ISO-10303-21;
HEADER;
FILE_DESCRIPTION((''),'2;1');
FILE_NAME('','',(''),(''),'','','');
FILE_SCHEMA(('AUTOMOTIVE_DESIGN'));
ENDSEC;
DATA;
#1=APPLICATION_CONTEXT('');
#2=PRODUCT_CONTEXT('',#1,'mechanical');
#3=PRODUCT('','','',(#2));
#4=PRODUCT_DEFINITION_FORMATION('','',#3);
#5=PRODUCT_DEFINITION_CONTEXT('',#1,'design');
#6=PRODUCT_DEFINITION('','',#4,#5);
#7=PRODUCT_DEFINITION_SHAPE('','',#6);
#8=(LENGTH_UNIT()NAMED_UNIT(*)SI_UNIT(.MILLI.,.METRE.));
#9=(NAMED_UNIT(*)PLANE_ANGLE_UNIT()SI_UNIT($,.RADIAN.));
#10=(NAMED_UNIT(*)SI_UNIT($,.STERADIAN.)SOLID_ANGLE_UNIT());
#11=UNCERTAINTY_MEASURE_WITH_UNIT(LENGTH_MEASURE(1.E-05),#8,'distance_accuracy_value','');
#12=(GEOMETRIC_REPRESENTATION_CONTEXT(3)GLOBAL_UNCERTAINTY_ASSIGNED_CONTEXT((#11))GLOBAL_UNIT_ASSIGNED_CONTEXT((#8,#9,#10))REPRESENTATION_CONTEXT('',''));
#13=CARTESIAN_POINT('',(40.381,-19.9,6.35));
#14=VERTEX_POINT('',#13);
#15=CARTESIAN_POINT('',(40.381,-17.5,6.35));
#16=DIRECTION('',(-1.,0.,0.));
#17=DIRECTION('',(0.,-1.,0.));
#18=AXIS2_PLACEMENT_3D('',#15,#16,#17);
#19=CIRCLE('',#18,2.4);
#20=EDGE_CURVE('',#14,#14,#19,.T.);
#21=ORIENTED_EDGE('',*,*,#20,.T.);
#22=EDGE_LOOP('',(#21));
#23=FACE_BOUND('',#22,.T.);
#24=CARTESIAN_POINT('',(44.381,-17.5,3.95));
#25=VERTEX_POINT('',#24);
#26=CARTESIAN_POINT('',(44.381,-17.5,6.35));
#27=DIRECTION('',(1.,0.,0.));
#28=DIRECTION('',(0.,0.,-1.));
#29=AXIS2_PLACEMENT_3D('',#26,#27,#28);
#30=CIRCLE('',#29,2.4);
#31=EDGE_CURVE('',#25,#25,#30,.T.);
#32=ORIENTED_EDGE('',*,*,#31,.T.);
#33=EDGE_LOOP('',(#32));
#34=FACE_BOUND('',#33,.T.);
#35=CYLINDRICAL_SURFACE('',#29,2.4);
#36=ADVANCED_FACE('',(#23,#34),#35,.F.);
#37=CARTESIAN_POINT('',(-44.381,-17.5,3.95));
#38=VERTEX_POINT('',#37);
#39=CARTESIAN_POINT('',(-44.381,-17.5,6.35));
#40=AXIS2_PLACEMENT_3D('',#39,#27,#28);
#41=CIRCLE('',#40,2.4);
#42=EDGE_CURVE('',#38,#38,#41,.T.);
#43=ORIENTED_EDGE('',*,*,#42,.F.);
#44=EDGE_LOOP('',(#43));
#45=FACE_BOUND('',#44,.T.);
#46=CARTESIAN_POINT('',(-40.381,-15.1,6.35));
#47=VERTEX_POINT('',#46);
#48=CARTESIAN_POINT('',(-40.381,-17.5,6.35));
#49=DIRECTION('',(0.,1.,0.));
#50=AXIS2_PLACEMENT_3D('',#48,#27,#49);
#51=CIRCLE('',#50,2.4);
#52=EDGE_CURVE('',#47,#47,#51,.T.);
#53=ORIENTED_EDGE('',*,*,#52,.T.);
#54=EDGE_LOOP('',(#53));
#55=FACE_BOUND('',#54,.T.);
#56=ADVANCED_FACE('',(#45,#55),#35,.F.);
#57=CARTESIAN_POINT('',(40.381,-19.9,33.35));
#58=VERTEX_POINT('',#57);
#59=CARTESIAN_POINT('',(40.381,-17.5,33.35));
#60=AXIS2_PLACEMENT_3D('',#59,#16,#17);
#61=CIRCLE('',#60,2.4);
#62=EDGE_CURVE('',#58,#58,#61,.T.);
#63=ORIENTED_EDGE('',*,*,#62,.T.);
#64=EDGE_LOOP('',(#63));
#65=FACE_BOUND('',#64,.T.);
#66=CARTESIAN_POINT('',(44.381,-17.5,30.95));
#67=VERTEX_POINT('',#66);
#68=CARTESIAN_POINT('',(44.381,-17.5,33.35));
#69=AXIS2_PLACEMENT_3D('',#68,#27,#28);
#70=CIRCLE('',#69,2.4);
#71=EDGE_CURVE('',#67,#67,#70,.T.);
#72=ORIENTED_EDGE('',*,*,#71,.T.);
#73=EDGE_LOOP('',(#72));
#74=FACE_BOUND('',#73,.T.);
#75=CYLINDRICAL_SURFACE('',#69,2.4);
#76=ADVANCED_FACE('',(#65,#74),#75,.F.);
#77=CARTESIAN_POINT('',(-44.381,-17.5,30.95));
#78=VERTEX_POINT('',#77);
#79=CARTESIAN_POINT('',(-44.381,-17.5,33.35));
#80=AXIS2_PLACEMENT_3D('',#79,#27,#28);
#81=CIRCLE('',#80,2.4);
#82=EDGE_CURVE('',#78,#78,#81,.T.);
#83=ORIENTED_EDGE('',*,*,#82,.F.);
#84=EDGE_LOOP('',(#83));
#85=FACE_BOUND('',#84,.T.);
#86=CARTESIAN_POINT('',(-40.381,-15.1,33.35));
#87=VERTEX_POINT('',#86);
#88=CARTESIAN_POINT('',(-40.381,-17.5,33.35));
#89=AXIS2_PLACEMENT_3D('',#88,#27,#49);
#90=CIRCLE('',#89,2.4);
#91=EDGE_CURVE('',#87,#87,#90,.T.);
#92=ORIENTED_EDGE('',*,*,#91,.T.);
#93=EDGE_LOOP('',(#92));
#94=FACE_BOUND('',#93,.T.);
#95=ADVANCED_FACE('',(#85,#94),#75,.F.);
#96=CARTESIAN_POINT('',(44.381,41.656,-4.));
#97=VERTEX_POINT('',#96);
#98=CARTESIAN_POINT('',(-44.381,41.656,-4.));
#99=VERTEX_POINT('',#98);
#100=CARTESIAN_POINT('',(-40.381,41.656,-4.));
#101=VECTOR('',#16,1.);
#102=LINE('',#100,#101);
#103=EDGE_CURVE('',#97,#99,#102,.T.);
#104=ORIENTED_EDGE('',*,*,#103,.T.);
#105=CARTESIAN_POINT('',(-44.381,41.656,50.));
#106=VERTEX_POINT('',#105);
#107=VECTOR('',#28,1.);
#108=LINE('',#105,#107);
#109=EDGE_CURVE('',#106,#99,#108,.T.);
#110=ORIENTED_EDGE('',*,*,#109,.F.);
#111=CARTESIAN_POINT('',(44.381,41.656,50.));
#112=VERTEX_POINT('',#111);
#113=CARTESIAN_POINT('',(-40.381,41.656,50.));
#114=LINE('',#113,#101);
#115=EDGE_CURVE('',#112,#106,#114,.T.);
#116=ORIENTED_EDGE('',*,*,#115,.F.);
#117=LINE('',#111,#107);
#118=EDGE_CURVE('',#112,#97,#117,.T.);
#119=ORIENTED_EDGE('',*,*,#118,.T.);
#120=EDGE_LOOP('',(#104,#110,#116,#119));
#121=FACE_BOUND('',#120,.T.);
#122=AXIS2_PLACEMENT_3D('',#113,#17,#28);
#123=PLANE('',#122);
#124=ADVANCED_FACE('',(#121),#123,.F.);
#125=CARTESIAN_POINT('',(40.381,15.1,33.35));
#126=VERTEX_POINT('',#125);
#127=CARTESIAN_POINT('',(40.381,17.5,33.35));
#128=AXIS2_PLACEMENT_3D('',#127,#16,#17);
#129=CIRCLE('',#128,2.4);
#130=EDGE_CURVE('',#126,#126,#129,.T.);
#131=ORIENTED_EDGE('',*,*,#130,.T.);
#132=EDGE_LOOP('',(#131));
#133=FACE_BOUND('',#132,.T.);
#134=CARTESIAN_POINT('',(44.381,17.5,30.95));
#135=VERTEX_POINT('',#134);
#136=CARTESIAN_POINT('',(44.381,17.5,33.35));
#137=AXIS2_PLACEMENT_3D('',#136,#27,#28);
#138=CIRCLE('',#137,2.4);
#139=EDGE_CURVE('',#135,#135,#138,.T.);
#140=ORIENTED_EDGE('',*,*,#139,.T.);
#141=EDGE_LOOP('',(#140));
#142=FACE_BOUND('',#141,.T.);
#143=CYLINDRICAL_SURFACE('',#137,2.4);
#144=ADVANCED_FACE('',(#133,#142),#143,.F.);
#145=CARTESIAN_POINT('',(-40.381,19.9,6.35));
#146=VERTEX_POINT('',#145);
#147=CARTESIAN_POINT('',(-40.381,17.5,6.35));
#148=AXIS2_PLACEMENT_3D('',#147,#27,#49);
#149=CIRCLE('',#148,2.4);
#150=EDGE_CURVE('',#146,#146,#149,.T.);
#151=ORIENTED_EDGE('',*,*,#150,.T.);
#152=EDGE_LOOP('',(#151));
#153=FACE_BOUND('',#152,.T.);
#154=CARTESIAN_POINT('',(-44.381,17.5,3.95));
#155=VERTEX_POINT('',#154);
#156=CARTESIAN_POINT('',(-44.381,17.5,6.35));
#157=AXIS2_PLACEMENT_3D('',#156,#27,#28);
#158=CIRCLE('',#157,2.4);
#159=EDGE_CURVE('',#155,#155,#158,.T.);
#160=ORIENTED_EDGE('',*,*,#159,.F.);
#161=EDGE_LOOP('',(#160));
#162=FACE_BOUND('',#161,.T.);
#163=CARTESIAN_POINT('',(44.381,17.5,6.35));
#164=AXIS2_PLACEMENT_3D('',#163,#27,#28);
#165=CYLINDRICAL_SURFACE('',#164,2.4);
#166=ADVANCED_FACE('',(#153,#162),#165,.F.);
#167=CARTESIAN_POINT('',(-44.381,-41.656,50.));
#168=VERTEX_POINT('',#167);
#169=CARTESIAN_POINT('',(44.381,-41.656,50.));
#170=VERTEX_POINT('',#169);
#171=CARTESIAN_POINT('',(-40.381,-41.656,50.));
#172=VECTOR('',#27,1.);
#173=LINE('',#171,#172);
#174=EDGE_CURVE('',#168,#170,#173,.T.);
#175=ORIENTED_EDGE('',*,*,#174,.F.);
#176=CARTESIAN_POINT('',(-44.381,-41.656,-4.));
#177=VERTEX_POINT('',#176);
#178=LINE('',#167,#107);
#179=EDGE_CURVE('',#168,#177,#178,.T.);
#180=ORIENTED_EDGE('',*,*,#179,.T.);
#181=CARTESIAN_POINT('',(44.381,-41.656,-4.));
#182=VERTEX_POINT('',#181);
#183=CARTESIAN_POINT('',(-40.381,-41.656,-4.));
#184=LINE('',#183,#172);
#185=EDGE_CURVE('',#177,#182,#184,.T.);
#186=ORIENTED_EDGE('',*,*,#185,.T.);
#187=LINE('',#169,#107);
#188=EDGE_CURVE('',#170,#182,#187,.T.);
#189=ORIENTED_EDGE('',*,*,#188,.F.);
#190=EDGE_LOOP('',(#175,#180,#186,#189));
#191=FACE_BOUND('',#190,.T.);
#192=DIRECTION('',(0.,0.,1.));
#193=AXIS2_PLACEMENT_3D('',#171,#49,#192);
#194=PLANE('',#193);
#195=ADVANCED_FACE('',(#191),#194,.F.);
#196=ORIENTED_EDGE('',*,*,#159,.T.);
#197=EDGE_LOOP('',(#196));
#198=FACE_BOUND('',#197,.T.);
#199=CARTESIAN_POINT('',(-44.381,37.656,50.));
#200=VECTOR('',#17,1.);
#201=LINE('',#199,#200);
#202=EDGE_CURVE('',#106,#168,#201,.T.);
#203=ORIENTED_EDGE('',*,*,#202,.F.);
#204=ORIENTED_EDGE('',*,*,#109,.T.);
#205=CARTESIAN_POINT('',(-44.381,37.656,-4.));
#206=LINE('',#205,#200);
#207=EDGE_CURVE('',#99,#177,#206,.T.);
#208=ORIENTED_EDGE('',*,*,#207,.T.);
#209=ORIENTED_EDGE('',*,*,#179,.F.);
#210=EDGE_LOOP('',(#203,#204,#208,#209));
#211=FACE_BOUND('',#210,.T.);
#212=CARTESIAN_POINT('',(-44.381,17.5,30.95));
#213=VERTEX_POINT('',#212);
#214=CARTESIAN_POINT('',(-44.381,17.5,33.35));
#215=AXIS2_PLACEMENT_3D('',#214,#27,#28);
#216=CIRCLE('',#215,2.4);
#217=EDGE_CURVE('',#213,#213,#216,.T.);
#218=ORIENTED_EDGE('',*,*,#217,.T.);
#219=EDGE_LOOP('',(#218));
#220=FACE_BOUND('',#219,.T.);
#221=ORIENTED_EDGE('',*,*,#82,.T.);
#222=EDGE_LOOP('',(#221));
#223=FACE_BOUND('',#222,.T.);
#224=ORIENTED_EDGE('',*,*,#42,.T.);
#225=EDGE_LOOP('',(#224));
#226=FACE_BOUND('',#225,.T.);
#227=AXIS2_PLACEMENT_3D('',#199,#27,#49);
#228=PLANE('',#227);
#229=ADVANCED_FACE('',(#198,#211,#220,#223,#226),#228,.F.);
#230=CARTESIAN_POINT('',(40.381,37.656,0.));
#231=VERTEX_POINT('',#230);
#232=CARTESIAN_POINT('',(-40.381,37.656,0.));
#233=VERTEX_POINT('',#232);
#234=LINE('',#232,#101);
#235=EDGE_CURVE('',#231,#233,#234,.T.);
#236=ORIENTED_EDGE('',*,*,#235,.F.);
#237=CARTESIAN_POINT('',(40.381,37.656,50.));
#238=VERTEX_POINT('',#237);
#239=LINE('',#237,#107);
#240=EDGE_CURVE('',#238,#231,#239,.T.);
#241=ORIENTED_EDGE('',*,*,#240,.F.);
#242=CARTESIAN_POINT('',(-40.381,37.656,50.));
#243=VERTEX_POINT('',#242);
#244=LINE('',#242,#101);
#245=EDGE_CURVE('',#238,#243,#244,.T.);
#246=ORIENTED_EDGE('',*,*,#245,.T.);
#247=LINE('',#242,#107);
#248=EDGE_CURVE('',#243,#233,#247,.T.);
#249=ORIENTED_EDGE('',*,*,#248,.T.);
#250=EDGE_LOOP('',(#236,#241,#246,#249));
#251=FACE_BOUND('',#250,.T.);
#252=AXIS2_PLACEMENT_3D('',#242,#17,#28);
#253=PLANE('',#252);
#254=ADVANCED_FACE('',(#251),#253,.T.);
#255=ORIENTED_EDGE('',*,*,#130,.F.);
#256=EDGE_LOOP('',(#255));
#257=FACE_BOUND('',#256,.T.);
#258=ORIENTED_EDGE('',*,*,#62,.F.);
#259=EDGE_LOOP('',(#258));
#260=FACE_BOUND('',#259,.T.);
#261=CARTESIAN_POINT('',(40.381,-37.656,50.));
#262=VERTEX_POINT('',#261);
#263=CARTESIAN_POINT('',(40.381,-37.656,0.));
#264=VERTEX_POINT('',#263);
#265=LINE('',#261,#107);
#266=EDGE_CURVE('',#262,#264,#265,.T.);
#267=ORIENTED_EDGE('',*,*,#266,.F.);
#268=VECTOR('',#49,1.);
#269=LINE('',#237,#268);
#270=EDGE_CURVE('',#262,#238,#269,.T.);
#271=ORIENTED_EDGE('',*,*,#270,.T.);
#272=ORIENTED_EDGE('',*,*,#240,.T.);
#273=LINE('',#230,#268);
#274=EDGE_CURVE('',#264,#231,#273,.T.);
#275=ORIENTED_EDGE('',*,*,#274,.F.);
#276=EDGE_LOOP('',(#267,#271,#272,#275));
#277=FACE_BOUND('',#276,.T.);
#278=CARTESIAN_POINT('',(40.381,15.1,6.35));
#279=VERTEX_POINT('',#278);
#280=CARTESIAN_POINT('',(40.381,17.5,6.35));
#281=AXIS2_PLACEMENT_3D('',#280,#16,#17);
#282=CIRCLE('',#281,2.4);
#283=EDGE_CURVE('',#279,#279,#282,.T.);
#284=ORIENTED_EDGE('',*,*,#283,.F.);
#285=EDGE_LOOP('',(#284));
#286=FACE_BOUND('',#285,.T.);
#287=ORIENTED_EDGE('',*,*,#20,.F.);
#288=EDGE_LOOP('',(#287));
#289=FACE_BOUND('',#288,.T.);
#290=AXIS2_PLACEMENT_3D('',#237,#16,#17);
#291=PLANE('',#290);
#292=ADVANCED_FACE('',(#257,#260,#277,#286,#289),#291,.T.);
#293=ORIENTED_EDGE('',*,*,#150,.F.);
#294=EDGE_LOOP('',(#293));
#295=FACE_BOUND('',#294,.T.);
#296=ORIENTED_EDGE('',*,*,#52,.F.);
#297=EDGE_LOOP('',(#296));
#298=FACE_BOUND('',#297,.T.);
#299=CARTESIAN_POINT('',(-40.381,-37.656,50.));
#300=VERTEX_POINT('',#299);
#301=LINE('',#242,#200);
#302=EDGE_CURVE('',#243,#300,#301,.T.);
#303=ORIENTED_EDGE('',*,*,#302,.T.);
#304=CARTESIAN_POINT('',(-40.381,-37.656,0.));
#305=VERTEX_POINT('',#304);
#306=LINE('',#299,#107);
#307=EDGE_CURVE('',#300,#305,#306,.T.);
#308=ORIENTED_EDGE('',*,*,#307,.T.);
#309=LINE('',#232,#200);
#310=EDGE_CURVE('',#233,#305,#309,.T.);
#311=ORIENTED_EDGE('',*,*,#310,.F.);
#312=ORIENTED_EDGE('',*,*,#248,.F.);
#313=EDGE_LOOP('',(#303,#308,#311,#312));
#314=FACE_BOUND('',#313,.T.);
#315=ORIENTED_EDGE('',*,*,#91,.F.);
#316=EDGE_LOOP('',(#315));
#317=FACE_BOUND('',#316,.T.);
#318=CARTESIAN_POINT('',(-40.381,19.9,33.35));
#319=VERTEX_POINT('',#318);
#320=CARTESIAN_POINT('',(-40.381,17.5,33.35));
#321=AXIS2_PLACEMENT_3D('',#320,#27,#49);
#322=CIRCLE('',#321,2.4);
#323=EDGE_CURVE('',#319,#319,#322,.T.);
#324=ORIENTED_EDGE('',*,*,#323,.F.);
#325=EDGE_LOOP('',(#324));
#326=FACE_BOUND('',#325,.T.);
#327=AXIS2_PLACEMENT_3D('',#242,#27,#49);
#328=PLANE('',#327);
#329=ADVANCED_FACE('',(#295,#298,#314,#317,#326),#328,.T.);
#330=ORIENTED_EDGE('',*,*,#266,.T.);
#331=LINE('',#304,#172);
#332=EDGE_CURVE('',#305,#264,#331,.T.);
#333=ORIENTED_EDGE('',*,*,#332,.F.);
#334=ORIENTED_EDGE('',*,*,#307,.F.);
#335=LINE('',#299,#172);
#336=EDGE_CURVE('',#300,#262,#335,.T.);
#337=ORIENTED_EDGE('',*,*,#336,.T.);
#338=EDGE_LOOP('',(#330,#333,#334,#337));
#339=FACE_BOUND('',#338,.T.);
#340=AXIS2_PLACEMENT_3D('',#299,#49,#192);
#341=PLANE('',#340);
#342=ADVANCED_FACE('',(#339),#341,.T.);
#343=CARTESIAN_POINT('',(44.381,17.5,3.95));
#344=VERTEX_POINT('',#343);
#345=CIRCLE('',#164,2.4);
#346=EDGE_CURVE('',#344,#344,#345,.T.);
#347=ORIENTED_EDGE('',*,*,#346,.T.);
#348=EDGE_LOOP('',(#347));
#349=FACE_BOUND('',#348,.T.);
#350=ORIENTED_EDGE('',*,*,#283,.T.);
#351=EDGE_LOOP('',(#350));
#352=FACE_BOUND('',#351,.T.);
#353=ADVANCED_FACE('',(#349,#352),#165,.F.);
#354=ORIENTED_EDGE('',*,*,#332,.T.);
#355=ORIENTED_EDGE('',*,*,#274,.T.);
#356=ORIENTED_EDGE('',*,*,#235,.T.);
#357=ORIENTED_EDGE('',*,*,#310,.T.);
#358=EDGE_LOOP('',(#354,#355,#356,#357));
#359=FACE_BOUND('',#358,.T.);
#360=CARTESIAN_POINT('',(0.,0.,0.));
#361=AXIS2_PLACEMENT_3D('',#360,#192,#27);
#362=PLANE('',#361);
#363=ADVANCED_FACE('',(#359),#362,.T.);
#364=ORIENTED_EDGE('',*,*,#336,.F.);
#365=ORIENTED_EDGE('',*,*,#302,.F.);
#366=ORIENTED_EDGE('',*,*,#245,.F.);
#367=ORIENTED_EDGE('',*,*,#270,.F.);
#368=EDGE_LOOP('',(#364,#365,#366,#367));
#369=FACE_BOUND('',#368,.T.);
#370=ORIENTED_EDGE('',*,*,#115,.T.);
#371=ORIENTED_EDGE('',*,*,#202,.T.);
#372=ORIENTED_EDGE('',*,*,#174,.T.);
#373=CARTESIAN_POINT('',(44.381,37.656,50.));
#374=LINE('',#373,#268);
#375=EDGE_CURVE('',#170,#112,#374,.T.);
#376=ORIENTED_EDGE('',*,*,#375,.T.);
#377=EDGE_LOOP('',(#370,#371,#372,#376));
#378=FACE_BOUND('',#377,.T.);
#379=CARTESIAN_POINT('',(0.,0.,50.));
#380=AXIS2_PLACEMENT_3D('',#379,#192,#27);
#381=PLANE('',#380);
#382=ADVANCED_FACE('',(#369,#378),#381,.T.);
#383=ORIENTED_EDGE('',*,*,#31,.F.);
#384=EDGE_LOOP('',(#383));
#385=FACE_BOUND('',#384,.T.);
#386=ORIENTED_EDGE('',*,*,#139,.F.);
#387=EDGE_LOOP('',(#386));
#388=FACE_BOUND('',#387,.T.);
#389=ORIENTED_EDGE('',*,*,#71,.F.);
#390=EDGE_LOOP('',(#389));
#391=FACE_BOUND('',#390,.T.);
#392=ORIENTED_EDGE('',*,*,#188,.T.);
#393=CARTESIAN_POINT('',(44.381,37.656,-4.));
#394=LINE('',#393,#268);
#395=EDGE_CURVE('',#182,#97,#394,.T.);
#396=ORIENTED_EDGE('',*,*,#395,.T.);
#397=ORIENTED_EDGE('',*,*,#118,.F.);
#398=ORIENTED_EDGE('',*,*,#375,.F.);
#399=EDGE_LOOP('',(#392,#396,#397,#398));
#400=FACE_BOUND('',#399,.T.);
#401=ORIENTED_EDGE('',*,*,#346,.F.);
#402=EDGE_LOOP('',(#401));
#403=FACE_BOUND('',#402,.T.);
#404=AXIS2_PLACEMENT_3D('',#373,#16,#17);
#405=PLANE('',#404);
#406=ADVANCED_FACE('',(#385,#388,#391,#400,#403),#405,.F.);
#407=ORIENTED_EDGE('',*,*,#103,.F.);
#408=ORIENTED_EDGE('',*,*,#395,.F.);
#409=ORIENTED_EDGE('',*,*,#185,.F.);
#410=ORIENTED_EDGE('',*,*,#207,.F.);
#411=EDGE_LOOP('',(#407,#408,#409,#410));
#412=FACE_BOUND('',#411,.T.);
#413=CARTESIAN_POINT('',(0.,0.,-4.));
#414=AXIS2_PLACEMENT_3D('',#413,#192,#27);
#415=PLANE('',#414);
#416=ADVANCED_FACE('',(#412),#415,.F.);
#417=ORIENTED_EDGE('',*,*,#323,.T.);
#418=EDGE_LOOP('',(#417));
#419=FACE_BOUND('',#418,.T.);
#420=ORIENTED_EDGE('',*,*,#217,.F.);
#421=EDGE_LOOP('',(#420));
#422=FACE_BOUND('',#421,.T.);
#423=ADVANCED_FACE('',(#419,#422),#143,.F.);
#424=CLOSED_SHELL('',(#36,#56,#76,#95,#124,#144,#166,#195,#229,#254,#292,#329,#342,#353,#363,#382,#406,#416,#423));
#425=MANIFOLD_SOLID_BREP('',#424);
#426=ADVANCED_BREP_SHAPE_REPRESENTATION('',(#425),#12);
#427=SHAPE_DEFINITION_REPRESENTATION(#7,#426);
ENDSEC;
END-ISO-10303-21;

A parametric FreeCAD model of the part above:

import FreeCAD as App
import Part
import Sketcher

V = App.Vector


def faces_at(feature, points):
    """Names of the faces that lie closest to the given points."""
    faces = feature.Shape.Faces
    near = lambda p: min(range(len(faces)), key=lambda i: faces[i].distToShape(Part.Vertex(*p))[0])
    return sorted({f"Face{near(p) + 1}" for p in points})


def add_polygon(sketch, points):
    """Adds a closed chain of lines whose ends are joined by coincident constraints."""
    first, n = sketch.GeometryCount, len(points)
    for a, b in zip(points, points[1:] + points[:1]):
        sketch.addGeometry(Part.LineSegment(App.Vector(*a, 0), App.Vector(*b, 0)), False)
    for i in range(n):
        sketch.addConstraint(Sketcher.Constraint("Coincident", first + i, 2, first + (i + 1) % n, 1))

doc = App.newDocument("Part")
body = doc.addObject("PartDesign::Body", "Body")

# Sketch on XY plane
sketch1 = body.newObject("Sketcher::SketchObject", "Sketch")
sketch1.AttachmentSupport = (doc.getObject("XY_Plane"), [""])
sketch1.MapMode = "FlatFace"
add_polygon(sketch1, [(-40, 38), (-40, -38), (40, -38), (40, 38)])  # lines 0-3
sketch1.addConstraint(Sketcher.Constraint("Vertical", 0))
sketch1.addConstraint(Sketcher.Constraint("Horizontal", 1))
sketch1.addConstraint(Sketcher.Constraint("Vertical", 2))
sketch1.addConstraint(Sketcher.Constraint("Horizontal", 3))
sketch1.addConstraint(Sketcher.Constraint("Symmetric", 0, 2, 2, 2, -1, 1))
sketch1.addConstraint(Sketcher.Constraint("DistanceX", 1, 1, 1, 2, 80.762))
sketch1.addConstraint(Sketcher.Constraint("DistanceY", 0, 2, 0, 1, 75.312))
pad1 = body.newObject("PartDesign::Pad", "Pad")
pad1.Profile = sketch1
pad1.Length = 50
doc.recompute()

thickness = body.newObject("PartDesign::Thickness", "Thickness")
thickness.Base = (pad1, faces_at(pad1, [(0, 0, 50)]))
thickness.Value = 4
thickness.Reversed = False
thickness.Join = "Intersection"

# Sketch on YZ plane
sketch2 = body.newObject("Sketcher::SketchObject", "Sketch001")
sketch2.AttachmentSupport = (doc.getObject("YZ_Plane"), [""])
sketch2.MapMode = "FlatFace"
sketch2.AttachmentOffset = App.Placement(V(0, 0, 44.381), App.Rotation())
sketch2.addGeometry(Part.Circle(V(-17.5, 33.4, 0), V(0, 0, 1), 2.4), False)
sketch2.addGeometry(Part.Circle(V(-17.5, 6.3, 0), V(0, 0, 1), 2.4), False)
sketch2.addGeometry(Part.Circle(V(17.5, 33.4, 0), V(0, 0, 1), 2.4), False)
sketch2.addGeometry(Part.Circle(V(17.5, 6.3, 0), V(0, 0, 1), 2.4), False)
sketch2.addConstraint(Sketcher.Constraint("Equal", 0, 1))
sketch2.addConstraint(Sketcher.Constraint("Equal", 1, 2))
sketch2.addConstraint(Sketcher.Constraint("Equal", 2, 3))
sketch2.addConstraint(Sketcher.Constraint("Symmetric", 0, 3, 2, 3, -2))
sketch2.addConstraint(Sketcher.Constraint("Symmetric", 1, 3, 3, 3, -2))
sketch2.addConstraint(Sketcher.Constraint("Vertical", 0, 3, 1, 3))
sketch2.addConstraint(Sketcher.Constraint("Diameter", 0, 4.8))
sketch2.addConstraint(Sketcher.Constraint("DistanceY", 1, 3, 0, 3, 27.0))
sketch2.addConstraint(Sketcher.Constraint("DistanceX", 0, 3, 2, 3, 35.0))
sketch2.addConstraint(Sketcher.Constraint("DistanceY", -1, 1, 0, 3, 33.35))
doc.recompute()
hole = body.newObject("PartDesign::Hole", "Hole")
hole.Profile = sketch2
hole.ThreadType = "None"
hole.Diameter = 4.8
hole.DepthType = "ThroughAll"

doc.recompute()
